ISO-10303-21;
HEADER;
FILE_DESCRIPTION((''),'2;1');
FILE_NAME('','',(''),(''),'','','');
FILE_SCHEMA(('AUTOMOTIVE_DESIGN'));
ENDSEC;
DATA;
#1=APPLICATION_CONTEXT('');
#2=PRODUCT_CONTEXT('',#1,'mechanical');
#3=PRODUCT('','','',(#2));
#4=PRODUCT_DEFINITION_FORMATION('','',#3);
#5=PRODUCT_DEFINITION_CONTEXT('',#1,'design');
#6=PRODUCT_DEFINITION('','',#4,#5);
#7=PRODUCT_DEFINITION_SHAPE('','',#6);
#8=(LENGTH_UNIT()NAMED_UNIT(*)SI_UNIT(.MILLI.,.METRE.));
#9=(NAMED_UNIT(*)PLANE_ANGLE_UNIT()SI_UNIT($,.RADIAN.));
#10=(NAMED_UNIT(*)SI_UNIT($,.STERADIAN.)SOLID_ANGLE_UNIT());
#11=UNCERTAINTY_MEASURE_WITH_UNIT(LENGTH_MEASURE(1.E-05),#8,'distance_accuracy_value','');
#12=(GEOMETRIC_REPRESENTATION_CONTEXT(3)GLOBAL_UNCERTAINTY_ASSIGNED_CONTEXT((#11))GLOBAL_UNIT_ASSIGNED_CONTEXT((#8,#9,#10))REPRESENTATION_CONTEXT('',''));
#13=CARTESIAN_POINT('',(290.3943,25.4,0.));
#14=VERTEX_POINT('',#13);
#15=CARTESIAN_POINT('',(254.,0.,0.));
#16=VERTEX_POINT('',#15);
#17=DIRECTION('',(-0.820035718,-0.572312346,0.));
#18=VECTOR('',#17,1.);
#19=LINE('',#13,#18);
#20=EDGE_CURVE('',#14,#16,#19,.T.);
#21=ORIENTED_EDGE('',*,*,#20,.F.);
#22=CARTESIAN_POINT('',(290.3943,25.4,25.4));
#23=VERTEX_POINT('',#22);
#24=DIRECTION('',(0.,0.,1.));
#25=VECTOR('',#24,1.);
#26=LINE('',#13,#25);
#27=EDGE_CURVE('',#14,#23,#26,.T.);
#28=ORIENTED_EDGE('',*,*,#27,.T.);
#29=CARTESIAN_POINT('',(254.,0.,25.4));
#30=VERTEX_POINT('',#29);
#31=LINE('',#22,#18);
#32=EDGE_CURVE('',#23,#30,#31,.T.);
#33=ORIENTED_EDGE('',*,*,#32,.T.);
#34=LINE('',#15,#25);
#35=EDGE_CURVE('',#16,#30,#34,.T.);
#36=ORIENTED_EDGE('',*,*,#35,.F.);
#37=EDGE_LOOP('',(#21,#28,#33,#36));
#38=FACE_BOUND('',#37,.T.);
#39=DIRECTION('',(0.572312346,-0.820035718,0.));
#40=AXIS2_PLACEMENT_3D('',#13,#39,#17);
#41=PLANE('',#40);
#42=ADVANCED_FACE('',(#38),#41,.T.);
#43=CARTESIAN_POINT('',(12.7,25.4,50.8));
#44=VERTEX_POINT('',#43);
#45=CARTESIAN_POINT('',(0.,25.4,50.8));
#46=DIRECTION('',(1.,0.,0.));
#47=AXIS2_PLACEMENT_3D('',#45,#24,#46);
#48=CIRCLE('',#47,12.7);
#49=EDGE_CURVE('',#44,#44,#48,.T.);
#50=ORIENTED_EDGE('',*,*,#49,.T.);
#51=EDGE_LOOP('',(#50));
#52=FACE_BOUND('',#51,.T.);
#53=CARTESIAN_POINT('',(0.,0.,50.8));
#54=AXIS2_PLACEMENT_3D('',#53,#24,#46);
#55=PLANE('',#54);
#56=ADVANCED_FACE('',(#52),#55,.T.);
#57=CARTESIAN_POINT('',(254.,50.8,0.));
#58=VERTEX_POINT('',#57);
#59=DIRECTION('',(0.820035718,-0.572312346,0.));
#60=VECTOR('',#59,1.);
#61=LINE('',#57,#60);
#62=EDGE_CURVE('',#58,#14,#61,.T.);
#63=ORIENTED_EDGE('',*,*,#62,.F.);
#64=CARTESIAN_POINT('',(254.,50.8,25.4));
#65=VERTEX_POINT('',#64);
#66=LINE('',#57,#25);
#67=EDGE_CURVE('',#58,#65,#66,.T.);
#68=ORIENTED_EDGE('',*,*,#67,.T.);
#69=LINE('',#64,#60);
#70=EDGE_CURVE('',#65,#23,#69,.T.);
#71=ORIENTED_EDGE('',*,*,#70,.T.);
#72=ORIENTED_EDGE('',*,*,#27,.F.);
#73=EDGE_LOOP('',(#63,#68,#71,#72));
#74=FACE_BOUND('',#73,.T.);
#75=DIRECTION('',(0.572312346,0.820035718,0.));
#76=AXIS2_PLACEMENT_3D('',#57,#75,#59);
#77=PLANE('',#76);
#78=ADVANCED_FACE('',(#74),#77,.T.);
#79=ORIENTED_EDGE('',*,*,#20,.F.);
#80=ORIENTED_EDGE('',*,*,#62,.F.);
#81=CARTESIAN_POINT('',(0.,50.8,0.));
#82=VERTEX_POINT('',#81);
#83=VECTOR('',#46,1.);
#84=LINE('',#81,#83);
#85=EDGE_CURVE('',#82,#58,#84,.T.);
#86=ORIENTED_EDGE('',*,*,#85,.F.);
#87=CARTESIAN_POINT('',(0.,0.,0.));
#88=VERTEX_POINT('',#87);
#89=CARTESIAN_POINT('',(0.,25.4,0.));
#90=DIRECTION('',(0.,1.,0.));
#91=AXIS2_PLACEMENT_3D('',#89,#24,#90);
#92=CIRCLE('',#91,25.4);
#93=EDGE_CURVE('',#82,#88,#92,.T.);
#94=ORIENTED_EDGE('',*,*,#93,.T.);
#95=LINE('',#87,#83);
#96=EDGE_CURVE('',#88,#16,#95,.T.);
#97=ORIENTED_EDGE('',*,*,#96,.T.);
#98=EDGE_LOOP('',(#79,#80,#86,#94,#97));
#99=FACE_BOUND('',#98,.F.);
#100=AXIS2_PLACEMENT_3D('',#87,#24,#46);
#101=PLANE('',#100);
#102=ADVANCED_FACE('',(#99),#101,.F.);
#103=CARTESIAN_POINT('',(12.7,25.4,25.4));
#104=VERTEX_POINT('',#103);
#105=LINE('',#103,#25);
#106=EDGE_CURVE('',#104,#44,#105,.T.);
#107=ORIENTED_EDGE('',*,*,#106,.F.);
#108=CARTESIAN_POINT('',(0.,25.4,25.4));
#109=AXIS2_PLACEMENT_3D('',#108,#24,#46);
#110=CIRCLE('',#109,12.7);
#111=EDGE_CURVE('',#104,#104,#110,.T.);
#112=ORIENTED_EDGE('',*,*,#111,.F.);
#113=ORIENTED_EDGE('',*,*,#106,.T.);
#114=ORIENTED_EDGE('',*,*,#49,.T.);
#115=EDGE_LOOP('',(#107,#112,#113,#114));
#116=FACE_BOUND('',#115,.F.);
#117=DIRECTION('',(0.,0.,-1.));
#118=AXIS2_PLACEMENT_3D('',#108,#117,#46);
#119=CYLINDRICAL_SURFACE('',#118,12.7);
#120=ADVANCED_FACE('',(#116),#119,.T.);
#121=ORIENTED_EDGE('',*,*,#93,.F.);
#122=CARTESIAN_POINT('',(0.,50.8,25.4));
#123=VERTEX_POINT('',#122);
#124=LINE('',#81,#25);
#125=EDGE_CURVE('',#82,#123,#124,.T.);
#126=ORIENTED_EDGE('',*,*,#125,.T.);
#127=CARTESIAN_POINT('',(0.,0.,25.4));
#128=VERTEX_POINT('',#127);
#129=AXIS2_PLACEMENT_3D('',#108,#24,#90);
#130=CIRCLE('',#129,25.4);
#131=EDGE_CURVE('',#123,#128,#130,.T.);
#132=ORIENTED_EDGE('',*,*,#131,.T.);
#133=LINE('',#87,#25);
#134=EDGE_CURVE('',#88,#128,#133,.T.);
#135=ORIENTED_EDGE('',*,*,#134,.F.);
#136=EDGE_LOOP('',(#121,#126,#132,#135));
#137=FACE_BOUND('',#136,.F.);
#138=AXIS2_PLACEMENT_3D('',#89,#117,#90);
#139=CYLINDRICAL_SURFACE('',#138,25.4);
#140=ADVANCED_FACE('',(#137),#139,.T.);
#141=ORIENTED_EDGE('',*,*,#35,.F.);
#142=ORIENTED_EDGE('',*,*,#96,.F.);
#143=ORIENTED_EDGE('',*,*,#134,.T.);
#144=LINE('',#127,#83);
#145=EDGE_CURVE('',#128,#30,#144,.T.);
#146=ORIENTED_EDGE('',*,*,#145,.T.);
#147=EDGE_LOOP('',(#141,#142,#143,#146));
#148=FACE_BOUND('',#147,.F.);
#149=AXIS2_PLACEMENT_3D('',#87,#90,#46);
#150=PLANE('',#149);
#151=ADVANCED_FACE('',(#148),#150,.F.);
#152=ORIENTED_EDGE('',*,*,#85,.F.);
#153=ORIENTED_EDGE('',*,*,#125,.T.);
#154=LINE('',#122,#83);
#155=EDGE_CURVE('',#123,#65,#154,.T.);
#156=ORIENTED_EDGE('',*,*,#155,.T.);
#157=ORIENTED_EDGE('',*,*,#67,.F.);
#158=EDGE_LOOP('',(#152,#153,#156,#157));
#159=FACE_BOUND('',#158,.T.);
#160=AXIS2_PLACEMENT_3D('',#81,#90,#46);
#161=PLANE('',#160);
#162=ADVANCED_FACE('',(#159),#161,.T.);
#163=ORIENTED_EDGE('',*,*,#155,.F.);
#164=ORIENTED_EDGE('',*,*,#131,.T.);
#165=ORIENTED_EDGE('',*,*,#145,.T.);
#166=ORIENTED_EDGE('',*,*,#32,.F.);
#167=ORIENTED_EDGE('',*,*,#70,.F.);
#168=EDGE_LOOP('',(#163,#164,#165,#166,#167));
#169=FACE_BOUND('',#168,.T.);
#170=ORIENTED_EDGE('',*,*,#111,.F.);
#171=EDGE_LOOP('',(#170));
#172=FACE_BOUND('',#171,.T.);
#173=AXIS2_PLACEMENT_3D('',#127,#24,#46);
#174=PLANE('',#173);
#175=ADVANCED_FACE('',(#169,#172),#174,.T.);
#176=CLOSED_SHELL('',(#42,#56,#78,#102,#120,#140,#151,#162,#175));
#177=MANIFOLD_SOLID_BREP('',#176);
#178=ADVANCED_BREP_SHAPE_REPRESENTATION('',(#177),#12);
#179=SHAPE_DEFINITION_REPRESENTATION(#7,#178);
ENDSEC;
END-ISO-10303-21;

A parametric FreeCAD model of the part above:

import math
import FreeCAD as App
import Part
import Sketcher

V = App.Vector
Q = App.Units.Quantity

doc = App.newDocument("Part")
params = doc.addObject("Spreadsheet::Sheet", "Params")
for row, (alias, value) in enumerate([
    ("sketch1_radius", "1 in"),
    ("sketch1_width", "10 in"),
    ("pad1_length", "1 in"),
    ("sketch2_diameter", "1 in"),
    ("pad2_length", "1 in"),
], start=1):
    params.set(f"A{row}", alias)
    params.set(f"B{row}", "=" + value)
    params.setAlias(f"B{row}", alias)

body = doc.addObject("PartDesign::Body", "Body")

# Sketch on XY plane
sketch1 = body.newObject("Sketcher::SketchObject", "Sketch")
sketch1.AttachmentSupport = (doc.getObject("XY_Plane"), [""])
sketch1.MapMode = "FlatFace"
sketch1.addGeometry(Part.ArcOfCircle(Part.Circle(V(0, 25.4, 0), V(0, 0, 1), 25.4), math.radians(90), math.radians(270)), False)
sketch1.addGeometry(Part.LineSegment(V(0, 0, 0), V(254, 0, 0)), False)
sketch1.addGeometry(Part.LineSegment(V(254, 0, 0), V(290.3943, 25.4, 0)), False)
sketch1.addGeometry(Part.LineSegment(V(290.3943, 25.4, 0), V(254, 50.8, 0)), False)
sketch1.addGeometry(Part.LineSegment(V(254, 50.8, 0), V(0, 50.8, 0)), False)
sketch1.addConstraint(Sketcher.Constraint("Tangent", 0, 2, 1, 1))
sketch1.addConstraint(Sketcher.Constraint("Coincident", 1, 2, 2, 1))
sketch1.addConstraint(Sketcher.Constraint("Coincident", 2, 2, 3, 1))
sketch1.addConstraint(Sketcher.Constraint("Coincident", 3, 2, 4, 1))
sketch1.addConstraint(Sketcher.Constraint("Tangent", 4, 2, 0, 1))
sketch1.addConstraint(Sketcher.Constraint("Horizontal", 1))
sketch1.addConstraint(Sketcher.Constraint("Horizontal", 4))
sketch1.addConstraint(Sketcher.Constraint("Coincident", 0, 2, -1, 1))
sketch1.addConstraint(Sketcher.Constraint("Horizontal", 0, 3, 2, 2))
sketch1.addConstraint(Sketcher.Constraint("Vertical", 1, 2, 3, 2))
sketch1.addConstraint(Sketcher.Constraint("Radius", 0, Q("1 in")))
sketch1.addConstraint(Sketcher.Constraint("DistanceX", 1, 1, 1, 2, Q("10 in")))
sketch1.addConstraint(Sketcher.Constraint("Distance", 2, Q("1.7473 in")))
sketch1.setExpression("Constraints[10]", "Params.sketch1_radius")
sketch1.setExpression("Constraints[11]", "Params.sketch1_width")
pad1 = body.newObject("PartDesign::Pad", "Pad")
pad1.Profile = sketch1
pad1.setExpression("Length", "Params.pad1_length")

# Sketch on XY plane
sketch2 = body.newObject("Sketcher::SketchObject", "Sketch001")
sketch2.AttachmentSupport = (doc.getObject("XY_Plane"), [""])
sketch2.MapMode = "FlatFace"
sketch2.AttachmentOffset = App.Placement(V(0, 0, 1 * 25.4), App.Rotation())
sketch2.addGeometry(Part.Circle(V(0, 25.4, 0), V(0, 0, 1), 12.7), False)
sketch2.addConstraint(Sketcher.Constraint("PointOnObject", 0, 3, -2))
sketch2.addConstraint(Sketcher.Constraint("Diameter", 0, Q("1 in")))
sketch2.addConstraint(Sketcher.Constraint("DistanceY", -1, 1, 0, 3, Q("1 in")))
sketch2.setExpression("Constraints[1]", "Params.sketch2_diameter")
pad2 = body.newObject("PartDesign::Pad", "Pad001")
pad2.Profile = sketch2
pad2.setExpression("Length", "Params.pad2_length")

doc.recompute()
